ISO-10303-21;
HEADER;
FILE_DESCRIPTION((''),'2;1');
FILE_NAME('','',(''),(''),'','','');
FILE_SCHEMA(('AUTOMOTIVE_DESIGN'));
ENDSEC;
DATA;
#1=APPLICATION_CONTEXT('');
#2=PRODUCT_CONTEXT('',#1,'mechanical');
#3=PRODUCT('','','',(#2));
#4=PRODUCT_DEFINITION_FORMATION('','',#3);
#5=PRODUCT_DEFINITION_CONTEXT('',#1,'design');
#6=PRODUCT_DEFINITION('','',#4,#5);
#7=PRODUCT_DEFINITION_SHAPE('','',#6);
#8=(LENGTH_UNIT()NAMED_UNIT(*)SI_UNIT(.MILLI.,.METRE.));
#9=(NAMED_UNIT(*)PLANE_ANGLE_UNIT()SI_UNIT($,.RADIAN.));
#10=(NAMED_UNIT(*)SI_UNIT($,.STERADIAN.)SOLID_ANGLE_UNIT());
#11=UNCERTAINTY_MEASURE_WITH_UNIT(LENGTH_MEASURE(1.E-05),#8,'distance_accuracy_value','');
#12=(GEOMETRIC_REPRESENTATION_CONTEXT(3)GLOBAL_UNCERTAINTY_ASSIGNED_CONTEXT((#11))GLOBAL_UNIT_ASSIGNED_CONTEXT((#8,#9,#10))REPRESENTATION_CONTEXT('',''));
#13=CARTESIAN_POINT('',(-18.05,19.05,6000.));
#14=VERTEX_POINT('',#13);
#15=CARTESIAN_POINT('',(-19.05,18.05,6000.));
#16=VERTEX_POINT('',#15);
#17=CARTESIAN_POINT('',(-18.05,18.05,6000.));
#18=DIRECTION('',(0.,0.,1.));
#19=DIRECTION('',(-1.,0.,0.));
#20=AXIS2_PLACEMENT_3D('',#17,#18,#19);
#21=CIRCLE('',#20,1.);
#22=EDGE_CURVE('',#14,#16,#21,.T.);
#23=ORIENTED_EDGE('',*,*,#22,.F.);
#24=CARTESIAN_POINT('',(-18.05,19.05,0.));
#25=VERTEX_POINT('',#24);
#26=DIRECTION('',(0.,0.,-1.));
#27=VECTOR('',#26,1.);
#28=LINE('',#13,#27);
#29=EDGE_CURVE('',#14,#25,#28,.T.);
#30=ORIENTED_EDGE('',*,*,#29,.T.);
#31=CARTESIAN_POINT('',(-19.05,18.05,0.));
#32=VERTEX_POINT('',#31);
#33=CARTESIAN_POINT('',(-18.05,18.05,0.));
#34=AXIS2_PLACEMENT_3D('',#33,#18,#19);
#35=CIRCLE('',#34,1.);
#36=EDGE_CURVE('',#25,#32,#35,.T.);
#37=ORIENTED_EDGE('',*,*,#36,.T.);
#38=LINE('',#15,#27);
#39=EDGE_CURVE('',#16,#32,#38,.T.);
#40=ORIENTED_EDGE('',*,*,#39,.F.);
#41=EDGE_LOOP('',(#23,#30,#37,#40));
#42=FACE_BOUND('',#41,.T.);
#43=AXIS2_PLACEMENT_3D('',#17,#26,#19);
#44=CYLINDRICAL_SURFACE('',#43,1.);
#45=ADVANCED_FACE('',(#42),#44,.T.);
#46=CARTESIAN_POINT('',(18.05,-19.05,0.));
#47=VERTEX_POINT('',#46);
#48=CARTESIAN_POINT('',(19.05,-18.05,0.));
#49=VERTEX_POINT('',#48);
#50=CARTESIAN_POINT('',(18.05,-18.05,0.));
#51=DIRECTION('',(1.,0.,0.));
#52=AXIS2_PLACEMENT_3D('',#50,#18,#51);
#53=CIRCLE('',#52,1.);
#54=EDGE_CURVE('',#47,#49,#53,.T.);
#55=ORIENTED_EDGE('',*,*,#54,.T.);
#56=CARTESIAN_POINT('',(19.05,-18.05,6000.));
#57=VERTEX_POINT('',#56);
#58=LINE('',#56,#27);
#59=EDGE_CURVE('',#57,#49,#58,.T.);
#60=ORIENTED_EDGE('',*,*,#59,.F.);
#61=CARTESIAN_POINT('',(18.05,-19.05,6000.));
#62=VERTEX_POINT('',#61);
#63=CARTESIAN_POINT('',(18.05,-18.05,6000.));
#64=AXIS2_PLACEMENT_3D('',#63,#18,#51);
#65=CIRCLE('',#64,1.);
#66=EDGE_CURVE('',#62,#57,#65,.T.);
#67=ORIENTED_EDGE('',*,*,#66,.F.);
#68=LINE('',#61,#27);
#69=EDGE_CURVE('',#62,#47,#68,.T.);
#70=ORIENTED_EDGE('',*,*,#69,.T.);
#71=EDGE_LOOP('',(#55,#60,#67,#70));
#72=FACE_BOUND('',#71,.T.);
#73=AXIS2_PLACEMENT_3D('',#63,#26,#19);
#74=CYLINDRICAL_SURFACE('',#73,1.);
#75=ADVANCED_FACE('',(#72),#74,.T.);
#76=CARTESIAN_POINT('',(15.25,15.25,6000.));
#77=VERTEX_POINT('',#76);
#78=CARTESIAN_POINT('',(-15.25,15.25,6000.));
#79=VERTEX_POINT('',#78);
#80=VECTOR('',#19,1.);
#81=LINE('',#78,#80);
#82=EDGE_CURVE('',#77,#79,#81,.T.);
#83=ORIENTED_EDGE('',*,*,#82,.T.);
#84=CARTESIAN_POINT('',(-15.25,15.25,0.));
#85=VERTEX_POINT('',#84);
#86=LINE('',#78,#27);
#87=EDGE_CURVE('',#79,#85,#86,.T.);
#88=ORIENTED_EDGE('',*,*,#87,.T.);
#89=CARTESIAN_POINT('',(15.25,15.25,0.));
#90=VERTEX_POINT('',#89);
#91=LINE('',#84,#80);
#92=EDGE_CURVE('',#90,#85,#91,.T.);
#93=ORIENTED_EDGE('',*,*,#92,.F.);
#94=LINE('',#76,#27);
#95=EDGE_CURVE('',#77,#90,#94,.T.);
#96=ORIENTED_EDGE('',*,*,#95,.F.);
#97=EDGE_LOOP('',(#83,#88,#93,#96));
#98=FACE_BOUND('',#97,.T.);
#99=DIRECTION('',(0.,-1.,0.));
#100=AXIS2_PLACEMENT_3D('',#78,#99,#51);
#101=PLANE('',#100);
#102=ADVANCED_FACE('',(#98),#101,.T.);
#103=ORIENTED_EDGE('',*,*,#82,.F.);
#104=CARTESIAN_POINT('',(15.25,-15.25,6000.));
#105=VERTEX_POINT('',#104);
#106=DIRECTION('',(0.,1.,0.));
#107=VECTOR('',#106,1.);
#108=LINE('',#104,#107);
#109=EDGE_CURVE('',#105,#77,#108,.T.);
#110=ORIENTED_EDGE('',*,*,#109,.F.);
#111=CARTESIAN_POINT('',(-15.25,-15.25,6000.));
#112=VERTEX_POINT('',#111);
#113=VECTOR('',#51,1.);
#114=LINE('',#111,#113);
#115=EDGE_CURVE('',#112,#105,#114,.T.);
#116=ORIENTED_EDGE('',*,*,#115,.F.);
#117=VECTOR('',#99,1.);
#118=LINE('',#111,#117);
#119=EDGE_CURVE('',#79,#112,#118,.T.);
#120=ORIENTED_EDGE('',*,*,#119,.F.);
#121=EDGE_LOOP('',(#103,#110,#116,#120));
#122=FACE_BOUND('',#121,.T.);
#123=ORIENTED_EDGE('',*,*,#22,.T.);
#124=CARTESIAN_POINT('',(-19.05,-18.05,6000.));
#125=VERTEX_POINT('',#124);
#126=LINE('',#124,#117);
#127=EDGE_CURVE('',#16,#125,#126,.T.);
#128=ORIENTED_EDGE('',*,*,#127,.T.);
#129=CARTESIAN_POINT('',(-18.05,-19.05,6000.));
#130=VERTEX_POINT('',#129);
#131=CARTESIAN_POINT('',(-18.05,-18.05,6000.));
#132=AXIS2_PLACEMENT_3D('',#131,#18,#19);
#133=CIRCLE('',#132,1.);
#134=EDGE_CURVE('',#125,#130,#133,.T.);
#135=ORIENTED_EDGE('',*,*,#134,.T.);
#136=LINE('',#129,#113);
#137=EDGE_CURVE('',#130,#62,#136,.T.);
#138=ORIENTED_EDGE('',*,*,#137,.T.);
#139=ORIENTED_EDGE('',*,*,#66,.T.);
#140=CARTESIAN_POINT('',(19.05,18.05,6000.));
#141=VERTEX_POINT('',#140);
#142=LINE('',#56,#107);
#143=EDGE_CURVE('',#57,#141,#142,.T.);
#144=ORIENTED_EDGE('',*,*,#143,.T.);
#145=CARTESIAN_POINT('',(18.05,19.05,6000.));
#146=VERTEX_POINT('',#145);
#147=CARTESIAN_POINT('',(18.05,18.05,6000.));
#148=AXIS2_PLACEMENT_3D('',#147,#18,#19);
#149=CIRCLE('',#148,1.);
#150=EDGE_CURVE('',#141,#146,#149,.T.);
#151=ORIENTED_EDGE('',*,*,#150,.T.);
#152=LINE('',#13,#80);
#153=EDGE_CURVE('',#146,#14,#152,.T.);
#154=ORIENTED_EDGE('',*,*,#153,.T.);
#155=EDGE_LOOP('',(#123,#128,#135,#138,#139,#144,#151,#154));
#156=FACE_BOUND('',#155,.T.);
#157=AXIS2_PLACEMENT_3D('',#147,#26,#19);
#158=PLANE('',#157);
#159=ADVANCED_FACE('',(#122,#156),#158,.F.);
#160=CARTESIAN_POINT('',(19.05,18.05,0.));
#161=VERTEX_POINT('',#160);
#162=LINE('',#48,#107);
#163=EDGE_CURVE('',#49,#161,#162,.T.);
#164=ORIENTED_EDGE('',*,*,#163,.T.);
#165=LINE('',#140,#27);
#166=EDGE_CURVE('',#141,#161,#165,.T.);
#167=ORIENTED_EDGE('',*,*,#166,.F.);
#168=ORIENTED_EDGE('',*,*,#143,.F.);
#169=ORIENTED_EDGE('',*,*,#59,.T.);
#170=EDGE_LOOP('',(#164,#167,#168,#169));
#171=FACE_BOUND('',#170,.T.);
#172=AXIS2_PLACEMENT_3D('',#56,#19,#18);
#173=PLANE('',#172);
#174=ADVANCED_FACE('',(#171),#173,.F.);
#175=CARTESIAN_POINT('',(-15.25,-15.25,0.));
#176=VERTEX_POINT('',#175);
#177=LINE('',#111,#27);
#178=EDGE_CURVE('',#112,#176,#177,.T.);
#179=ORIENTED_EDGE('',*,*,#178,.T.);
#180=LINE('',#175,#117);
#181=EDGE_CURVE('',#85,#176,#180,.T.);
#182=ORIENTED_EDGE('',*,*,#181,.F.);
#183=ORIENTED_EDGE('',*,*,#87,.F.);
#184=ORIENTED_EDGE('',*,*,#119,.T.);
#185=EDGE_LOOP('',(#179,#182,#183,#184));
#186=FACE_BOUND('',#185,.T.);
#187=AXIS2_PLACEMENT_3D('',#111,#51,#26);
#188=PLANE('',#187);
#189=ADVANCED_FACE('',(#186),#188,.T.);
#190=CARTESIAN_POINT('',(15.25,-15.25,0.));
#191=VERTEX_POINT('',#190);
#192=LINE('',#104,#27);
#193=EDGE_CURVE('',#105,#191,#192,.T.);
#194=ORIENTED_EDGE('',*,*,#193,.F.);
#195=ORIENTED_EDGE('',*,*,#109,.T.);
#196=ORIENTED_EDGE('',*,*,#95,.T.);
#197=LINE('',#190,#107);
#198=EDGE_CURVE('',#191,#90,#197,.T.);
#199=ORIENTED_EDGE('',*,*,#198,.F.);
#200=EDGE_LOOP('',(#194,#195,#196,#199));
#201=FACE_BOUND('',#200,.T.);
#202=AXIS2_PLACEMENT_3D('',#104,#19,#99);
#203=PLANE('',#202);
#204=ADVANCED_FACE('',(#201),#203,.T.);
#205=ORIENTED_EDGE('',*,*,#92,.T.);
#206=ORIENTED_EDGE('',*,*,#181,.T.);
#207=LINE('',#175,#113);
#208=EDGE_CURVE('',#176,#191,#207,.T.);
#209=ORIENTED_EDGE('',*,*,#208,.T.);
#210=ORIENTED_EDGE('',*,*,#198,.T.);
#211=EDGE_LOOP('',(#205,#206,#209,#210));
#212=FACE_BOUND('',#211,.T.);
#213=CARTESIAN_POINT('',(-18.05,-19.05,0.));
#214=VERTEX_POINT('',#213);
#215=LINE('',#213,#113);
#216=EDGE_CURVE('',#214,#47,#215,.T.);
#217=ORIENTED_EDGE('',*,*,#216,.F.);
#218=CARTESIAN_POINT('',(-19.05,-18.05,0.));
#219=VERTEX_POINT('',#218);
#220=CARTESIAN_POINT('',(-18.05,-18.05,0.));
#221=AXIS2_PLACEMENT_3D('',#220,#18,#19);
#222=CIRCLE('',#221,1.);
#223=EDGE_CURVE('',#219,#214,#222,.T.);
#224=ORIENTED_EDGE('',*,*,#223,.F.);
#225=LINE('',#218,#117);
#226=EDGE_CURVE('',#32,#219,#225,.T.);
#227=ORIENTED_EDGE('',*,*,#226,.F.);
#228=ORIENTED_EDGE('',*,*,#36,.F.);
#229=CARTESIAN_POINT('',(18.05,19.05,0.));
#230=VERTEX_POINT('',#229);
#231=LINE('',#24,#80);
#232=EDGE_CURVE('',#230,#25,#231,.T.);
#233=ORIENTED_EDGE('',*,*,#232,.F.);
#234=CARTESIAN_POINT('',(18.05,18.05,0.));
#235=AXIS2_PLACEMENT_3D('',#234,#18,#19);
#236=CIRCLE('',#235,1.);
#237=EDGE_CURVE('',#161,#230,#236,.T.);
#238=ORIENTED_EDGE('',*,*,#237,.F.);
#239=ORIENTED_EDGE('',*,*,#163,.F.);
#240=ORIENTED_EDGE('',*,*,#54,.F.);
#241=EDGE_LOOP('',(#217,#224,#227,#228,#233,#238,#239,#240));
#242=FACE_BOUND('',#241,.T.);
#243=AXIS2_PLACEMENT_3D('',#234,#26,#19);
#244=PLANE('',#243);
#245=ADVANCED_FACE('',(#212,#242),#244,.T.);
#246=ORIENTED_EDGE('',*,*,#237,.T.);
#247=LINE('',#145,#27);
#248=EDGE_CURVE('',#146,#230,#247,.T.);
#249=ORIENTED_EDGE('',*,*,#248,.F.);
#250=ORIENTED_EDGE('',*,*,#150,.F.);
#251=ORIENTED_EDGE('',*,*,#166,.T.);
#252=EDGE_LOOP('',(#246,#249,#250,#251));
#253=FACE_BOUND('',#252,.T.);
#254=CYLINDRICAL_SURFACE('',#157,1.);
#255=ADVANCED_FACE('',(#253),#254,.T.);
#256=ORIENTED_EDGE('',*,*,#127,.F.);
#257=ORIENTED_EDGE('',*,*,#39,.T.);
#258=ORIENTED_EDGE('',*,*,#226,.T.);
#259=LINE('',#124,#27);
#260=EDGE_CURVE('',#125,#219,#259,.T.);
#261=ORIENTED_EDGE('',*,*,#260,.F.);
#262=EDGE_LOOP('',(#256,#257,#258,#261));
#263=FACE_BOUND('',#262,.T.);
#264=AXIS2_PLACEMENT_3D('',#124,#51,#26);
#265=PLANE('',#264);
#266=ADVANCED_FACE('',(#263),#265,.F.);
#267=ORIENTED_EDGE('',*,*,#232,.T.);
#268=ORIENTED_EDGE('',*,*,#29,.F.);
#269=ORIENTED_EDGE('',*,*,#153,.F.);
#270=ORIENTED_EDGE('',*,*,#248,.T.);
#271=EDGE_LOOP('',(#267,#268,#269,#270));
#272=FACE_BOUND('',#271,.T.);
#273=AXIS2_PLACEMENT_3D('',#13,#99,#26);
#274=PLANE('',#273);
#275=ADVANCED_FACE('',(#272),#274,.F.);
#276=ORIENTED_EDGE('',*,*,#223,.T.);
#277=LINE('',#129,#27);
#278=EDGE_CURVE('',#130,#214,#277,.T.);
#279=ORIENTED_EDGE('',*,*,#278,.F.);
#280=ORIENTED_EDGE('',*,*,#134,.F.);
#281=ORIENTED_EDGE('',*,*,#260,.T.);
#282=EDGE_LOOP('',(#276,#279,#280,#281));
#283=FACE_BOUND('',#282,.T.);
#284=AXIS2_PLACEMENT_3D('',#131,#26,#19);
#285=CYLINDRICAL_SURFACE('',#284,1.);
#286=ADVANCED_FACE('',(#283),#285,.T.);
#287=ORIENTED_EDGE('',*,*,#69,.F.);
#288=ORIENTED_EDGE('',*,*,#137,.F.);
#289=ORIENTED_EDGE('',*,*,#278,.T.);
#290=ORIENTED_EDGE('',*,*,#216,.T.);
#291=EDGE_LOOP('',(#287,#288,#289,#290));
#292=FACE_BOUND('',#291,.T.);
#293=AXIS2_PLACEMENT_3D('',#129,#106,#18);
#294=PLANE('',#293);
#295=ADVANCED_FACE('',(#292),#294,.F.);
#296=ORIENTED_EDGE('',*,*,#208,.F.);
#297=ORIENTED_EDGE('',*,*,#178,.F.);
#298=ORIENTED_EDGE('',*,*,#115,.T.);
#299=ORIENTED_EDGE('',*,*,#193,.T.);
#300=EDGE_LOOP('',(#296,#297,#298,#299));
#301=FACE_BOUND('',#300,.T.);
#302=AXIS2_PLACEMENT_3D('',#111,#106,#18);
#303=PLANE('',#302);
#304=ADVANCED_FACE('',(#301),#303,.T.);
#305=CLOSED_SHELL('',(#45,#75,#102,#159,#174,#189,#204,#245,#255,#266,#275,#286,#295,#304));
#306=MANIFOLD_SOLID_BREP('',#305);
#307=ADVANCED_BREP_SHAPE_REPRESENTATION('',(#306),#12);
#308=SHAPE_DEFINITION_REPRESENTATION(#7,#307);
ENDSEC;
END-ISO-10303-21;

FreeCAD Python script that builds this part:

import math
import FreeCAD as App
import Part
import Sketcher


def add_polygon(sketch, points):
    """Adds a closed chain of lines whose ends are joined by coincident constraints."""
    first, n = sketch.GeometryCount, len(points)
    for a, b in zip(points, points[1:] + points[:1]):
        sketch.addGeometry(Part.LineSegment(App.Vector(*a, 0), App.Vector(*b, 0)), False)
    for i in range(n):
        sketch.addConstraint(Sketcher.Constraint("Coincident", first + i, 2, first + (i + 1) % n, 1))

doc = App.newDocument("Part")
body = doc.addObject("PartDesign::Body", "Body")

# Sketch on XY plane
sketch1 = body.newObject("Sketcher::SketchObject", "Sketch")
sketch1.AttachmentSupport = (doc.getObject("XY_Plane"), [""])
sketch1.MapMode = "FlatFace"
sketch1.addGeometry(Part.LineSegment(App.Vector(-18.05, -19.05, 0), App.Vector(18.05, -19.05, 0)), False)  # 0
sketch1.addGeometry(Part.ArcOfCircle(Part.Circle(App.Vector(18.05, -18.05, 0), App.Vector(0, 0, 1), 1), math.radians(-90), math.radians(0)), False)  # 1
sketch1.addGeometry(Part.LineSegment(App.Vector(19.05, -18.05, 0), App.Vector(19.05, 18.05, 0)), False)  # 2
sketch1.addGeometry(Part.ArcOfCircle(Part.Circle(App.Vector(18.05, 18.05, 0), App.Vector(0, 0, 1), 1), math.radians(0), math.radians(90)), False)  # 3
sketch1.addGeometry(Part.LineSegment(App.Vector(18.05, 19.05, 0), App.Vector(-18.05, 19.05, 0)), False)  # 4
sketch1.addGeometry(Part.ArcOfCircle(Part.Circle(App.Vector(-18.05, 18.05, 0), App.Vector(0, 0, 1), 1), math.radians(90), math.radians(180)), False)  # 5
sketch1.addGeometry(Part.LineSegment(App.Vector(-19.05, 18.05, 0), App.Vector(-19.05, -18.05, 0)), False)  # 6
sketch1.addGeometry(Part.ArcOfCircle(Part.Circle(App.Vector(-18.05, -18.05, 0), App.Vector(0, 0, 1), 1), math.radians(-180), math.radians(-90)), False)  # 7
add_polygon(sketch1, [(15.25, -15.25), (-15.25, -15.25), (-15.25, 15.25), (15.25, 15.25)])  # lines 8-11
sketch1.addConstraint([
    Sketcher.Constraint("Tangent", 0, 2, 1, 1),
    Sketcher.Constraint("Tangent", 1, 2, 2, 1),
    Sketcher.Constraint("Tangent", 2, 2, 3, 1),
    Sketcher.Constraint("Tangent", 3, 2, 4, 1),
    Sketcher.Constraint("Tangent", 4, 2, 5, 1),
    Sketcher.Constraint("Tangent", 5, 2, 6, 1),
    Sketcher.Constraint("Tangent", 6, 2, 7, 1),
    Sketcher.Constraint("Tangent", 7, 2, 0, 1),
    Sketcher.Constraint("Horizontal", 0),
    Sketcher.Constraint("Vertical", 2),
    Sketcher.Constraint("Horizontal", 4),
    Sketcher.Constraint("Vertical", 6),
    Sketcher.Constraint("Horizontal", 8),
    Sketcher.Constraint("Vertical", 9),
    Sketcher.Constraint("Horizontal", 10),
    Sketcher.Constraint("Vertical", 11),
    Sketcher.Constraint("Equal", 1, 3),
    Sketcher.Constraint("Equal", 3, 5),
    Sketcher.Constraint("Equal", 5, 7),
    Sketcher.Constraint("Symmetric", 1, 3, 5, 3, -1, 1),
    Sketcher.Constraint("Symmetric", 8, 2, 10, 2, -1, 1),
    Sketcher.Constraint("Equal", 4, 2),
    Sketcher.Constraint("Equal", 10, 9),
    Sketcher.Constraint("Radius", 1, 1.0),
    Sketcher.Constraint("DistanceX", 0, 1, 0, 2, 36.1),
    Sketcher.Constraint("DistanceX", 8, 2, 8, 1, 30.5),
])
pad1 = body.newObject("PartDesign::Pad", "Pad")
pad1.Profile = sketch1
pad1.Length = 6000

doc.recompute()
